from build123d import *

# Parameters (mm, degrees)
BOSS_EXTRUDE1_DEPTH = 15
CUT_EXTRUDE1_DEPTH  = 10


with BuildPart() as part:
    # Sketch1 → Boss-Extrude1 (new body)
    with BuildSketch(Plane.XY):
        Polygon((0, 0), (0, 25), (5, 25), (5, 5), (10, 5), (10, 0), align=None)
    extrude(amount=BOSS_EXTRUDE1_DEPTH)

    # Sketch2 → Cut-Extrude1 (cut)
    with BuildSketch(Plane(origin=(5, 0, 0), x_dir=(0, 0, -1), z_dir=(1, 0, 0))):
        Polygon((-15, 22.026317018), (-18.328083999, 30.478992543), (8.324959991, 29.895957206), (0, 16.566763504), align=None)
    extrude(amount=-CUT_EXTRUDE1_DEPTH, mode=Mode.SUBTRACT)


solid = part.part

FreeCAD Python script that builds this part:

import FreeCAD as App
import Part
import Sketcher

V = App.Vector
Q = App.Units.Quantity

doc = App.newDocument("Part")
body = doc.addObject("PartDesign::Body", "Body")

# Sketch on XY plane
sketch1 = body.newObject("Sketcher::SketchObject", "Sketch")
sketch1.AttachmentSupport = (doc.getObject("XY_Plane"), [""])
sketch1.MapMode = "FlatFace"
sketch1.addGeometry([
    Part.LineSegment(V(0, 25, 0), V(0, 0, 0)),  # 0
    Part.LineSegment(V(0, 0, 0), V(10, 0, 0)),  # 1
    Part.LineSegment(V(10, 0, 0), V(10, 5, 0)),  # 2
    Part.LineSegment(V(10, 5, 0), V(5, 5, 0)),  # 3
    Part.LineSegment(V(5, 5, 0), V(5, 25, 0)),  # 4
    Part.LineSegment(V(5, 25, 0), V(0, 25, 0)),  # 5
], False)
sketch1.addConstraint([
    Sketcher.Constraint("Coincident", 0, 2, 1, 1),
    Sketcher.Constraint("Coincident", 1, 2, 2, 1),
    Sketcher.Constraint("Coincident", 2, 2, 3, 1),
    Sketcher.Constraint("Coincident", 3, 2, 4, 1),
    Sketcher.Constraint("Coincident", 4, 2, 5, 1),
    Sketcher.Constraint("Coincident", 5, 2, 0, 1),
    Sketcher.Constraint("Vertical", 0),
    Sketcher.Constraint("Horizontal", 1),
    Sketcher.Constraint("Vertical", 2),
    Sketcher.Constraint("Horizontal", 3),
    Sketcher.Constraint("Vertical", 4),
    Sketcher.Constraint("Horizontal", 5),
    Sketcher.Constraint("Coincident", 0, 2, -1, 1),
    Sketcher.Constraint("Equal", 3, 5),
    Sketcher.Constraint("Equal", 5, 2),
    Sketcher.Constraint("DistanceX", 1, 1, 1, 2, 10.0),
    Sketcher.Constraint("DistanceY", 0, 2, 0, 1, 25.0),
])
pad1 = body.newObject("PartDesign::Pad", "Pad")
pad1.Profile = sketch1
pad1.Length = 15

# Sketch on YZ plane
sketch2 = body.newObject("Sketcher::SketchObject", "Sketch001")
sketch2.AttachmentSupport = (doc.getObject("YZ_Plane"), [""])
sketch2.MapMode = "FlatFace"
sketch2.AttachmentOffset = App.Placement(V(0, 0, 5), App.Rotation())
sketch2.addGeometry([
    Part.LineSegment(V(30, 18, 0), V(22, 15, 0)),
    Part.LineSegment(V(22, 15, 0), V(17, 0, 0)),
    Part.LineSegment(V(17, 0, 0), V(30, -8, 0)),
    Part.LineSegment(V(30, -8, 0), V(30, 18, 0)),
], False)
sketch2.addConstraint([
    Sketcher.Constraint("Coincident", 0, 2, 1, 1),
    Sketcher.Constraint("Coincident", 1, 2, 2, 1),
    Sketcher.Constraint("Coincident", 2, 2, 3, 1),
    Sketcher.Constraint("Coincident", 3, 2, 0, 1),
    Sketcher.Constraint("PointOnObject", 1, 2, -1),
    Sketcher.Constraint("Angle", 1, Q("-110 deg")),
    Sketcher.Constraint("DistanceY", -1, 1, 0, 2, 15.0),
    Sketcher.Constraint("Distance", 3, 26.65942),
    Sketcher.Constraint("DistanceY", 2, 2, -1, 1, 8.32496),
    Sketcher.Constraint("DistanceX", 0, 2, 2, 2, 7.86964),
    Sketcher.Constraint("DistanceX", 1, 2, 3, 2, 13.912229),
    Sketcher.Constraint("DistanceX", -1, 1, 0, 2, 22.026317),
])
pocket1 = body.newObject("PartDesign::Pocket", "Pocket")
pocket1.Profile = sketch2
pocket1.Length = 10

doc.recompute()
